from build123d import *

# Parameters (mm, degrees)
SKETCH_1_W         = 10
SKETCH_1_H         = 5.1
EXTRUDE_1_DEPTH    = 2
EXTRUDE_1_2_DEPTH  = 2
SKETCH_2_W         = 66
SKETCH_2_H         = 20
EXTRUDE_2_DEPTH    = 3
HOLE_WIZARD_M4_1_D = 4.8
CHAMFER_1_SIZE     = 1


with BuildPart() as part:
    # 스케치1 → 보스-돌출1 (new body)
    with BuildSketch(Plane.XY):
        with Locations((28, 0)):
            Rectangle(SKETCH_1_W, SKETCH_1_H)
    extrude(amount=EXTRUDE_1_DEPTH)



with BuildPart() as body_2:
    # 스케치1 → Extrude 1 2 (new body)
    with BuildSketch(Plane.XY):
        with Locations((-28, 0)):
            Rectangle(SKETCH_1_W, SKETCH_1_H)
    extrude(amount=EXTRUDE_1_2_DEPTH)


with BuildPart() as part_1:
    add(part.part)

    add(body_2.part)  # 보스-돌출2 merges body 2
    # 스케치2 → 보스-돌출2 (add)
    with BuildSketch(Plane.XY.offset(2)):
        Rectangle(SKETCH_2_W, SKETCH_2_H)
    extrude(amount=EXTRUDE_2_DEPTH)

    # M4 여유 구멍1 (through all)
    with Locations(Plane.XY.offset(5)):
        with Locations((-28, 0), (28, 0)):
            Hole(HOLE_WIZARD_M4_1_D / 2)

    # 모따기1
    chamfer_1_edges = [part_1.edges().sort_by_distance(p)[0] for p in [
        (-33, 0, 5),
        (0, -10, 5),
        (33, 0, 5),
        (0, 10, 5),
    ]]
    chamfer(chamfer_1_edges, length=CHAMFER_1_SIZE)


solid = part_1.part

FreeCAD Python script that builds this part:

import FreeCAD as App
import Part
import Sketcher
Q = App.Units.Quantity


def edges_at(feature, points):
    """Names of the edges that pass closest to the given points."""
    edges = feature.Shape.Edges
    near = lambda p: min(range(len(edges)), key=lambda i: edges[i].distToShape(Part.Vertex(*p))[0])
    return sorted({f"Edge{near(p) + 1}" for p in points})


def add_polygon(sketch, points):
    """Adds a closed chain of lines whose ends are joined by coincident constraints."""
    first, n = sketch.GeometryCount, len(points)
    for a, b in zip(points, points[1:] + points[:1]):
        sketch.addGeometry(Part.LineSegment(App.Vector(*a, 0), App.Vector(*b, 0)), False)
    for i in range(n):
        sketch.addConstraint(Sketcher.Constraint("Coincident", first + i, 2, first + (i + 1) % n, 1))

doc = App.newDocument("Part")
body = doc.addObject("PartDesign::Body", "Body")

sketch1 = body.newObject("Sketcher::SketchObject", "Sketch")
sketch1.AttachmentSupport = (doc.getObject("XY_Plane"), [""])
sketch1.MapMode = "FlatFace"
add_polygon(sketch1, [(23, 2.55), (23, -2.55), (33, -2.55), (33, 2.55)])
sketch1.addConstraint([
    Sketcher.Constraint("Vertical", 0),
    Sketcher.Constraint("Horizontal", 1),
    Sketcher.Constraint("Vertical", 2),
    Sketcher.Constraint("Horizontal", 3),
    Sketcher.Constraint("DistanceX", 1, 1, 1, 2, Q("10 mm")),
    Sketcher.Constraint("DistanceY", 0, 2, 0, 1, Q("5.1 mm")),
    Sketcher.Constraint("DistanceX", -1, 1, 0, 2, Q("23 mm")),
    Sketcher.Constraint("DistanceY", 0, 2, -1, 1, Q("2.55 mm")),
])
pad1 = body.newObject("PartDesign::Pad", "Pad")
pad1.Profile = sketch1
pad1.Length = 2
body2 = doc.addObject("PartDesign::Body", "Body001")

sketch2 = body2.newObject("Sketcher::SketchObject", "Sketch001")
sketch2.AttachmentSupport = (doc.getObject("XY_Plane001"), [""])
sketch2.MapMode = "FlatFace"
add_polygon(sketch2, [(-33, 2.55), (-33, -2.55), (-23, -2.55), (-23, 2.55)])
sketch2.addConstraint([
    Sketcher.Constraint("Vertical", 0),
    Sketcher.Constraint("Horizontal", 1),
    Sketcher.Constraint("Vertical", 2),
    Sketcher.Constraint("Horizontal", 3),
    Sketcher.Constraint("DistanceX", 1, 1, 1, 2, Q("10 mm")),
    Sketcher.Constraint("DistanceY", 0, 2, 0, 1, Q("5.1 mm")),
    Sketcher.Constraint("DistanceX", 0, 2, -1, 1, Q("33 mm")),
    Sketcher.Constraint("DistanceY", 0, 2, -1, 1, Q("2.55 mm")),
])
pad2 = body2.newObject("PartDesign::Pad", "Pad001")
pad2.Profile = sketch2
pad2.Length = 2
body.AllowCompound = True
doc.recompute()

boolean = body.newObject("PartDesign::Boolean", "Boolean")
boolean.Type = "Fuse"
boolean.addObjects([body2])

sketch3 = body.newObject("Sketcher::SketchObject", "Sketch002")
sketch3.AttachmentSupport = (doc.getObject("XY_Plane"), [""])
sketch3.MapMode = "FlatFace"
sketch3.AttachmentOffset = App.Placement(App.Vector(0, 0, 2), App.Rotation())
add_polygon(sketch3, [(-33, 10), (-33, -10), (33, -10), (33, 10)])
sketch3.addConstraint([
    Sketcher.Constraint("Vertical", 0),
    Sketcher.Constraint("Horizontal", 1),
    Sketcher.Constraint("Vertical", 2),
    Sketcher.Constraint("Horizontal", 3),
    Sketcher.Constraint("Symmetric", 0, 2, 2, 2, -1, 1),
    Sketcher.Constraint("DistanceX", 1, 1, 1, 2, Q("66 mm")),
    Sketcher.Constraint("DistanceY", 0, 2, 0, 1, Q("20 mm")),
])
pad3 = body.newObject("PartDesign::Pad", "Pad002")
pad3.Profile = sketch3
pad3.Length = 3

sketch4 = body.newObject("Sketcher::SketchObject", "Sketch003")
sketch4.AttachmentSupport = (doc.getObject("XY_Plane"), [""])
sketch4.MapMode = "FlatFace"
sketch4.AttachmentOffset = App.Placement(App.Vector(0, 0, 5), App.Rotation())
sketch4.addGeometry([
    Part.Circle(App.Vector(-28, 0, 0), App.Vector(0, 0, 1), 2.4),
    Part.Circle(App.Vector(28, 0, 0), App.Vector(0, 0, 1), 2.4),
], False)
sketch4.addConstraint([
    Sketcher.Constraint("Equal", 0, 1),
    Sketcher.Constraint("Symmetric", 0, 3, 1, 3, -1, 1),
    Sketcher.Constraint("PointOnObject", 0, 3, -1),
    Sketcher.Constraint("Diameter", 0, Q("4.8 mm")),
    Sketcher.Constraint("DistanceX", 0, 3, -1, 1, Q("28 mm")),
])
doc.recompute()
hole = body.newObject("PartDesign::Hole", "Hole")
hole.Profile = sketch4
hole.ThreadType = "None"
hole.Diameter = 4.8
hole.DepthType = "ThroughAll"
doc.recompute()

chamfer = body.newObject("PartDesign::Chamfer", "Chamfer")
chamfer.Base = (hole, edges_at(hole, [
    (-33, 0, 5),
    (0, -10, 5),
    (33, 0, 5),
    (0, 10, 5),
]))
chamfer.Size = 1

doc.recompute()
